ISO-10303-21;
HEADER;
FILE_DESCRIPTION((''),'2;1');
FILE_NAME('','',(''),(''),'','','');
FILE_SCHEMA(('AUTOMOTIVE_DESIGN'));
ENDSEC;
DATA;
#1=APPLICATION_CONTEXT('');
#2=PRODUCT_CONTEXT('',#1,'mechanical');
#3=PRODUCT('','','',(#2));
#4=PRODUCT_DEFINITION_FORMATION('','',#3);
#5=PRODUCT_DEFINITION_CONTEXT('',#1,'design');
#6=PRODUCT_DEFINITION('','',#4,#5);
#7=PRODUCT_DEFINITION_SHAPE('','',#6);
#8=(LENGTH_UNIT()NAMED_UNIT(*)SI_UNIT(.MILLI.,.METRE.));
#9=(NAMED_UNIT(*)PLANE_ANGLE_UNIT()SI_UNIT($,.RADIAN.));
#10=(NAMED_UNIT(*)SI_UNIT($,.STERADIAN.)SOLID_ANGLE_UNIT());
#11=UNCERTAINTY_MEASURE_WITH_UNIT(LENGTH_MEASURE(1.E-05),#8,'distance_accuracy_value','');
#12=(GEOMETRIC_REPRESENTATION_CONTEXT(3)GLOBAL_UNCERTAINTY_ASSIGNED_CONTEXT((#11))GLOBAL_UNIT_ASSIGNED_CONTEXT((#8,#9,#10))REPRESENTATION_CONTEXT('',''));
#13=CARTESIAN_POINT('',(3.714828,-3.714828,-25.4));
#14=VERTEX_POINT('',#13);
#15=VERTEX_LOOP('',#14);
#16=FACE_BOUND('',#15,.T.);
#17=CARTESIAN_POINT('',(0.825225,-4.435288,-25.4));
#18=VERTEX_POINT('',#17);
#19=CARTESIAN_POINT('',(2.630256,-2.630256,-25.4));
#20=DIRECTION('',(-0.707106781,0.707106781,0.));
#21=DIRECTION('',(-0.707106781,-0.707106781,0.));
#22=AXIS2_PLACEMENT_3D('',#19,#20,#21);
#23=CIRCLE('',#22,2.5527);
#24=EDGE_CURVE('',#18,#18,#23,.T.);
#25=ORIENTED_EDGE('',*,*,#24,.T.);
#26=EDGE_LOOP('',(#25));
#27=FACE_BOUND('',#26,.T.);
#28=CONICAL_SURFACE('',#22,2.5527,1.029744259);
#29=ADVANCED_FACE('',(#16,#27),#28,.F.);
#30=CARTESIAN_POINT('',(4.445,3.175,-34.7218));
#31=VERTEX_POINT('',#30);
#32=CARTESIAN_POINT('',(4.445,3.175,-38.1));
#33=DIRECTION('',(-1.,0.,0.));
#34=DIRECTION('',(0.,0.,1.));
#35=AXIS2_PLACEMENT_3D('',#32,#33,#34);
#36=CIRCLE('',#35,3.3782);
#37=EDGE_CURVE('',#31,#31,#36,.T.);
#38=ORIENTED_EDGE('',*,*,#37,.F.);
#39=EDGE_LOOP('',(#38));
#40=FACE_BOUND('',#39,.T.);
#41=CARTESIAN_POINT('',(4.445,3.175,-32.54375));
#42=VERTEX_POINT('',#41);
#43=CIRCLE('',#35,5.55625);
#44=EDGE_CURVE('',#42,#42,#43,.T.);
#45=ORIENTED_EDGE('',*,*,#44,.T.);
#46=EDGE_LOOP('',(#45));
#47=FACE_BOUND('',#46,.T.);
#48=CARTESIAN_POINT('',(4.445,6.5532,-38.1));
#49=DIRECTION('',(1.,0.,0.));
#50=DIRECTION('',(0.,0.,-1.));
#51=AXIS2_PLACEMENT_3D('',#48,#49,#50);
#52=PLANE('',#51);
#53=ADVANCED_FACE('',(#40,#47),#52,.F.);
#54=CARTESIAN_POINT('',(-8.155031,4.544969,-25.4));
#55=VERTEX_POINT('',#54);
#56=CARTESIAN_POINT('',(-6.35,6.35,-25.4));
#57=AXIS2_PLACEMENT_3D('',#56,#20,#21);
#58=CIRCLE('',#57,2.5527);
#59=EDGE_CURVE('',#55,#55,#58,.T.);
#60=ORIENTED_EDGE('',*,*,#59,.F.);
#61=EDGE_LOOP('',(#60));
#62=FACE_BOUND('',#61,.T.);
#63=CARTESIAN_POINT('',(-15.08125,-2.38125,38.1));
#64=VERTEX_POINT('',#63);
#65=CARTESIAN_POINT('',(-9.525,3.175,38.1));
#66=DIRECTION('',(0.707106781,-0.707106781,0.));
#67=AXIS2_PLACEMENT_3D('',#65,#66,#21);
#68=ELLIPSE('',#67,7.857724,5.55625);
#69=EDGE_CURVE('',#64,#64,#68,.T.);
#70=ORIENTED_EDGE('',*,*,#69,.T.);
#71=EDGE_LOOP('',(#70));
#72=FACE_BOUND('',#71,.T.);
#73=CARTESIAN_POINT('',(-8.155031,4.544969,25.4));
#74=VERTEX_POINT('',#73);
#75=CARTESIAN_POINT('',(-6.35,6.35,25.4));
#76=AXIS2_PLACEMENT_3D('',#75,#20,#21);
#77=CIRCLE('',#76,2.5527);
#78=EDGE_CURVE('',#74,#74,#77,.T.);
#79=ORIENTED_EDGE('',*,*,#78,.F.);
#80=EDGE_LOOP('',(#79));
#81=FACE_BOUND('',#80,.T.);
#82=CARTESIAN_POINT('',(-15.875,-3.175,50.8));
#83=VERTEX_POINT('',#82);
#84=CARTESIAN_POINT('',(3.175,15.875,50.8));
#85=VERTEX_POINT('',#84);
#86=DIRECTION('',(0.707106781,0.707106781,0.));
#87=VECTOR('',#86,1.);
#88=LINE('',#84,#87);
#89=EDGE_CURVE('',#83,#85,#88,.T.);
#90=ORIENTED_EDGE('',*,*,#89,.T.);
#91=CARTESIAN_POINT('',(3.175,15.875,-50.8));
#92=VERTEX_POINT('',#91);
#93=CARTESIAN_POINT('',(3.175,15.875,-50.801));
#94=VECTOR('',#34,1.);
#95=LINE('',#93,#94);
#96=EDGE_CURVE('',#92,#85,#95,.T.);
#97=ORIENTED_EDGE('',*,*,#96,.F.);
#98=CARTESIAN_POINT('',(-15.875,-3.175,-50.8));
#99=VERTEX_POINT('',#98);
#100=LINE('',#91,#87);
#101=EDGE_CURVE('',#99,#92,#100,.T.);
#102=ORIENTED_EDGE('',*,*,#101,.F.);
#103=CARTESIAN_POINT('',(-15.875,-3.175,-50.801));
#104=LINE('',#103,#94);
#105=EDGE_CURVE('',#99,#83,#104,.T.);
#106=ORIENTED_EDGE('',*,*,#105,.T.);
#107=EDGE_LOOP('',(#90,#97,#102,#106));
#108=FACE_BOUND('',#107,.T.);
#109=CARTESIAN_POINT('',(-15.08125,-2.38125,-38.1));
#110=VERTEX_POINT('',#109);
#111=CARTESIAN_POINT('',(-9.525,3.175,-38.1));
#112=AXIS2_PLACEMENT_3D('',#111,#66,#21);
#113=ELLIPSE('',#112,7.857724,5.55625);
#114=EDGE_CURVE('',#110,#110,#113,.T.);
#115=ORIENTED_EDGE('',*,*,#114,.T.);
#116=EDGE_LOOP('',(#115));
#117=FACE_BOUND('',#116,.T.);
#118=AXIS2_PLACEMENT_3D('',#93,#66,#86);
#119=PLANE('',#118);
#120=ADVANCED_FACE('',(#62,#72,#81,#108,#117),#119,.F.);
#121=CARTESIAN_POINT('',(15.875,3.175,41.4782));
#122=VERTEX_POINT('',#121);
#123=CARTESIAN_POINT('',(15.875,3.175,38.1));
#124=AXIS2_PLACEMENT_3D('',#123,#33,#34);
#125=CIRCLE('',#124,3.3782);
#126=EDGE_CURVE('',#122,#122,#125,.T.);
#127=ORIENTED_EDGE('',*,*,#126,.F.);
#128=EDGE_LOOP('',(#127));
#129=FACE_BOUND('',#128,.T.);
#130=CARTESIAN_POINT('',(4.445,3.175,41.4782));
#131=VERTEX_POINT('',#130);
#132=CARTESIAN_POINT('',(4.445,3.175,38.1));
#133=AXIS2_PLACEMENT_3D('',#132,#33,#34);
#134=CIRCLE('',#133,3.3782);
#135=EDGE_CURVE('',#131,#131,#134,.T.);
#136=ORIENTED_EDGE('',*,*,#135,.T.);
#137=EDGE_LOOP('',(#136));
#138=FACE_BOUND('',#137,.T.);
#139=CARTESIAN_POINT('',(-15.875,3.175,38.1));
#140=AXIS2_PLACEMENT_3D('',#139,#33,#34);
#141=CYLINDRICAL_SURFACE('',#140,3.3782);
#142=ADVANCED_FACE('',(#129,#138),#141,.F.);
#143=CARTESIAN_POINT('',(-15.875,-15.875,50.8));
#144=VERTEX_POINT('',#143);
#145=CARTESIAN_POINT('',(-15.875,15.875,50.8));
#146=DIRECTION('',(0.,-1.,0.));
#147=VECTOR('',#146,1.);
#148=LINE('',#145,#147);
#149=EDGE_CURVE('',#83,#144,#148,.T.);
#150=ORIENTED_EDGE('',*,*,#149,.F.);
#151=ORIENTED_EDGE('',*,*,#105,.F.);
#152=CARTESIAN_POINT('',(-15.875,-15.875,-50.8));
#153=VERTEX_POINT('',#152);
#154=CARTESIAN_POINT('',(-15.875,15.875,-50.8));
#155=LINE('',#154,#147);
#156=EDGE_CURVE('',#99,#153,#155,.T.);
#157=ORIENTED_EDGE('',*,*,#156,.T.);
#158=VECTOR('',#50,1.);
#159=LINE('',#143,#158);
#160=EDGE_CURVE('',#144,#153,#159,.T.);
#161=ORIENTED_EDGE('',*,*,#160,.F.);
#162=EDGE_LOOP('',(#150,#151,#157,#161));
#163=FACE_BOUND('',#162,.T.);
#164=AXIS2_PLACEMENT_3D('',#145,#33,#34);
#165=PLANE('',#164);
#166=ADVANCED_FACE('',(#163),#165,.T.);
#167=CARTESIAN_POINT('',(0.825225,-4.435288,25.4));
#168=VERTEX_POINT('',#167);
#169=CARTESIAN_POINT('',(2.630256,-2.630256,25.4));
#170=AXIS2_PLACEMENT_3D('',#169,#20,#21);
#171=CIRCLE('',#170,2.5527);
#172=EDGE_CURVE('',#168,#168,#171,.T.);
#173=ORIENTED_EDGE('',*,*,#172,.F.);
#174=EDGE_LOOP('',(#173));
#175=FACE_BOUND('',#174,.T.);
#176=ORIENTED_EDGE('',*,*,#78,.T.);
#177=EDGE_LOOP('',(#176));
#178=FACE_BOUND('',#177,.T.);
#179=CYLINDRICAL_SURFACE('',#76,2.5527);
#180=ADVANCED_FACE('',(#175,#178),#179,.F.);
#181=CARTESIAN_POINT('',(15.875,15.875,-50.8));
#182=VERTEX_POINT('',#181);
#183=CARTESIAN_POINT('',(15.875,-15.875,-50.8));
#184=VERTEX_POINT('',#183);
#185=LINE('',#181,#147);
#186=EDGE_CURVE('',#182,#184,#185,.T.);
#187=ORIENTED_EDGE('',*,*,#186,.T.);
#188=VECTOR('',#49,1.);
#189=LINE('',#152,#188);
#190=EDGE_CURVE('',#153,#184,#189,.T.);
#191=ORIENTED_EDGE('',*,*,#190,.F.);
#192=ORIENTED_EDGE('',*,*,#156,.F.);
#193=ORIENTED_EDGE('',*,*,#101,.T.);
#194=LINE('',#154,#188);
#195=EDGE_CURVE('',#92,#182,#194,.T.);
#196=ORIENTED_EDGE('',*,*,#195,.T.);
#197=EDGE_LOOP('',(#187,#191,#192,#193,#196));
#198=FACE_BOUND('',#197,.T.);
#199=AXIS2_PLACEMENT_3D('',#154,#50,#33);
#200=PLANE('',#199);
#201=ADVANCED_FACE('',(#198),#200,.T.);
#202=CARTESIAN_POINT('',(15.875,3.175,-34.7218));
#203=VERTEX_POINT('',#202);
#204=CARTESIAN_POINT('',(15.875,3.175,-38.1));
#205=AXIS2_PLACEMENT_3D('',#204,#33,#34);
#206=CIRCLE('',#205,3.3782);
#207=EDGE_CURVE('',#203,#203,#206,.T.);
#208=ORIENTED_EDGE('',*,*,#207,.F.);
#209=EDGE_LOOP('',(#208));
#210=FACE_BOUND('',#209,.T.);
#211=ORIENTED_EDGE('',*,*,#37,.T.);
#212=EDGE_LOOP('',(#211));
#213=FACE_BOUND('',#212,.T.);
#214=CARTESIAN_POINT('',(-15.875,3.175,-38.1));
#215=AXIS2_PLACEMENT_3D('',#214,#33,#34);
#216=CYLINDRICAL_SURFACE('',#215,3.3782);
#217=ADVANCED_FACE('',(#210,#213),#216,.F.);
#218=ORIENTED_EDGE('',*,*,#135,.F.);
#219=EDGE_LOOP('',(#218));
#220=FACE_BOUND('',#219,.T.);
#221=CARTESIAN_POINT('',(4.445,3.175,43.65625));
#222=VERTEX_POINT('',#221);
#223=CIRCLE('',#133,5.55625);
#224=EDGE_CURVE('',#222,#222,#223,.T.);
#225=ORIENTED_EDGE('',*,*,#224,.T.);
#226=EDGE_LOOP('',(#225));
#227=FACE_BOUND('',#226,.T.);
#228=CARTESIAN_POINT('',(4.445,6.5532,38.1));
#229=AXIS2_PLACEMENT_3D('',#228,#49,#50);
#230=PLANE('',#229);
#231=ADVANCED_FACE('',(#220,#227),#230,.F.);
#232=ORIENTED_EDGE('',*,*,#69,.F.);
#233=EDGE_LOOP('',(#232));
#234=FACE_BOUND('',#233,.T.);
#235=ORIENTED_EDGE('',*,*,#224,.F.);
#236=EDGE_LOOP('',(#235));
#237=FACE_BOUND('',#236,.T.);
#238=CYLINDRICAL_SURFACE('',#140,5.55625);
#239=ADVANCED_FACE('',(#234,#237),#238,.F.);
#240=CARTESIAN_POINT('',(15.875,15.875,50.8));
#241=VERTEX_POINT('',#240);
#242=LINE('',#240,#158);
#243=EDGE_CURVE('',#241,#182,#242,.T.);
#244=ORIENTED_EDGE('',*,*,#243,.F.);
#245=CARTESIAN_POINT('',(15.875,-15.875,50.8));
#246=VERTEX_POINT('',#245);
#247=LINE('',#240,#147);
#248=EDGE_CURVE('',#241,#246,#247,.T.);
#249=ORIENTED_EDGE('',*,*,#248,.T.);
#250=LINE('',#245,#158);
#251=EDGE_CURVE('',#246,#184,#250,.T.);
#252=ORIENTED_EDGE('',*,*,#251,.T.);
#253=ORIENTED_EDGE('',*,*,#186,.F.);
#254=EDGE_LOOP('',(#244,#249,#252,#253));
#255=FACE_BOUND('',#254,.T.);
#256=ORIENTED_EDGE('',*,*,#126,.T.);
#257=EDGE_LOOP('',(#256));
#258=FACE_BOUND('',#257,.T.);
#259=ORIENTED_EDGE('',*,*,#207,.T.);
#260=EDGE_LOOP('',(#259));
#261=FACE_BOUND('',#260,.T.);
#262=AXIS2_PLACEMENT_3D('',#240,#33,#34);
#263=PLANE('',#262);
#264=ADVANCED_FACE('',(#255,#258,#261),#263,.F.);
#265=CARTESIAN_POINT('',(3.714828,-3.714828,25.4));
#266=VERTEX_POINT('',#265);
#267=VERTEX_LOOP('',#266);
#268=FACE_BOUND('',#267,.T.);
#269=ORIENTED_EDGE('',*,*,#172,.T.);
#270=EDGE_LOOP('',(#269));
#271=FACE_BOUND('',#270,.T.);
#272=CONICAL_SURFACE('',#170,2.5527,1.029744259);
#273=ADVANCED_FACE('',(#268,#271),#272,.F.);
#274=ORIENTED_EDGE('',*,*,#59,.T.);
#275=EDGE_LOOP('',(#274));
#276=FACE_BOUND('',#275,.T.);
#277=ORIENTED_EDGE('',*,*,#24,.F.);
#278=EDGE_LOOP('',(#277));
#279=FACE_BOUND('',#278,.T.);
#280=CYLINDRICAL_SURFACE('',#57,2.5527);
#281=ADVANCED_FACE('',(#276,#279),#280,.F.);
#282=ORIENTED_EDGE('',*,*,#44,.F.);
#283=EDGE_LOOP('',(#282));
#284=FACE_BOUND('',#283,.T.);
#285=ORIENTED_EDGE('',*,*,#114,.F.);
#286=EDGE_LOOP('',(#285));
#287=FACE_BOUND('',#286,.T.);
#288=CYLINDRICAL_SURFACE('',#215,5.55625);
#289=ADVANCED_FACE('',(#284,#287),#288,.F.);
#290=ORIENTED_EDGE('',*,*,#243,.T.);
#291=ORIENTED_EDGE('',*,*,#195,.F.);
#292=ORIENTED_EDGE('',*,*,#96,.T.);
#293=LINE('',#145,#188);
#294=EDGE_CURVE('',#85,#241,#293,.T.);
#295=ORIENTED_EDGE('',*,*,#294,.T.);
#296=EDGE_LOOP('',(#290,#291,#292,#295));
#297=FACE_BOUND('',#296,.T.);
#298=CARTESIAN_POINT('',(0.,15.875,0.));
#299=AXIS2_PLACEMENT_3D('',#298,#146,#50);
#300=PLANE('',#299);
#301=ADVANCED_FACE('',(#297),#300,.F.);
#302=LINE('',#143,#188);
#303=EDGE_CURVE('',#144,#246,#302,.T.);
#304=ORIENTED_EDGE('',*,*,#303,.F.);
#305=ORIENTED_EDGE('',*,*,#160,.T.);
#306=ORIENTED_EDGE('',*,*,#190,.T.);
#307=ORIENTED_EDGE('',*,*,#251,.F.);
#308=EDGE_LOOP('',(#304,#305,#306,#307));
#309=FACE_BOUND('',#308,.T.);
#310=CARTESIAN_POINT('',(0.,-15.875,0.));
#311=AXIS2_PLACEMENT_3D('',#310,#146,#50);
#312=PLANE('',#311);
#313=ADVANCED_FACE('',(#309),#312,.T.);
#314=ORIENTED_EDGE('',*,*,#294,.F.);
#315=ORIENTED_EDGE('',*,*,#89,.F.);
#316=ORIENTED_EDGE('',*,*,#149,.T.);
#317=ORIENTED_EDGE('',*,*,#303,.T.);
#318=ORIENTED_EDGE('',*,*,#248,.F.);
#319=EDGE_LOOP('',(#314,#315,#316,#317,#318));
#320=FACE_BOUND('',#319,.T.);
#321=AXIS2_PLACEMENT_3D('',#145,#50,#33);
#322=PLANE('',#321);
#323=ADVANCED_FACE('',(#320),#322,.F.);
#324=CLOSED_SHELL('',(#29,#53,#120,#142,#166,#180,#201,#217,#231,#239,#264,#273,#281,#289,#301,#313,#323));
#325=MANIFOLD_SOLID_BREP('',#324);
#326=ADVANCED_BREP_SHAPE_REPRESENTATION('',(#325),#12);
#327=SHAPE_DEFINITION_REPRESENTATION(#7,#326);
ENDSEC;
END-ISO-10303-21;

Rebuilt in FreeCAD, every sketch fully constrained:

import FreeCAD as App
import Part
import Sketcher
Q = App.Units.Quantity


def add_polygon(sketch, points):
    """Adds a closed chain of lines whose ends are joined by coincident constraints."""
    first, n = sketch.GeometryCount, len(points)
    for a, b in zip(points, points[1:] + points[:1]):
        sketch.addGeometry(Part.LineSegment(App.Vector(*a, 0), App.Vector(*b, 0)), False)
    for i in range(n):
        sketch.addConstraint(Sketcher.Constraint("Coincident", first + i, 2, first + (i + 1) % n, 1))

doc = App.newDocument("Part")
params = doc.addObject("Spreadsheet::Sheet", "Params")
for row, (alias, value) in enumerate([
    ("sketch1_height", "4 in"),
    ("sketch1_width", "1.25 in"),
    ("pad1_length", "1.25 in"),
    ("sketch2_width", "0.75 in"),
    ("sketch3_diameter", "0.201 in"),
    ("hole_diameter", "0.201 in"),
    ("hole_depth", "0.5 in"),
    ("sketch4_diameter", "0.266 in"),
    ("hole2_diameter", "0.266 in"),
    ("hole2_cbore_diameter", "0.4375 in"),
    ("hole2_cbore_depth", "0.8 in"),
], start=1):
    params.set(f"A{row}", alias)
    params.set(f"B{row}", "=" + value)
    params.setAlias(f"B{row}", alias)

body = doc.addObject("PartDesign::Body", "Body")

# Sketch on XZ plane
sketch1 = doc.addObject("Sketcher::SketchObject", "Sketch")
body.addObject(sketch1)
sketch1.AttachmentSupport = (doc.XZ_Plane, [""])
sketch1.MapMode = "FlatFace"
add_polygon(sketch1, [(-16, -51), (-16, 51), (16, 51), (16, -51)])  # lines 0-3
sketch1.addConstraint(Sketcher.Constraint("Vertical", 0))
sketch1.addConstraint(Sketcher.Constraint("Horizontal", 1))
sketch1.addConstraint(Sketcher.Constraint("Vertical", 2))
sketch1.addConstraint(Sketcher.Constraint("Horizontal", 3))
sketch1.addConstraint(Sketcher.Constraint("Symmetric", 0, 2, 2, 2, -1, 1))
sketch1.addConstraint(Sketcher.Constraint("DistanceY", 0, 1, 0, 2, Q("4 in")))
sketch1.addConstraint(Sketcher.Constraint("DistanceX", 1, 1, 1, 2, Q("1.25 in")))
sketch1.setExpression("Constraints[9]", "Params.sketch1_height")
sketch1.setExpression("Constraints[10]", "Params.sketch1_width")
pad1 = doc.addObject("PartDesign::Pad", "Pad")
body.addObject(pad1)
pad1.Profile = sketch1
pad1.setExpression("Length", "Params.pad1_length")
pad1.Midplane = True

# Sketch on XY plane
sketch2 = doc.addObject("Sketcher::SketchObject", "Sketch001")
body.addObject(sketch2)
sketch2.AttachmentSupport = (doc.XY_Plane, [""])
sketch2.MapMode = "FlatFace"
sketch2.AttachmentOffset = App.Placement(App.Vector(0, 0, 2 * 25.4), App.Rotation())
add_polygon(sketch2, [(-16, 16), (-16, -3), (3, 16)])  # lines 0-2
sketch2.addConstraint(Sketcher.Constraint("Vertical", 0))
sketch2.addConstraint(Sketcher.Constraint("Horizontal", 2))
sketch2.addConstraint(Sketcher.Constraint("Equal", 2, 0))
sketch2.addConstraint(Sketcher.Constraint("DistanceX", 2, 2, 2, 1, Q("0.75 in")))
sketch2.addConstraint(Sketcher.Constraint("DistanceX", 0, 2, -1, 1, Q("0.625 in")))
sketch2.addConstraint(Sketcher.Constraint("DistanceY", 0, 2, -1, 1, Q("0.125 in")))
sketch2.setExpression("Constraints[6]", "Params.sketch2_width")
pocket1 = doc.addObject("PartDesign::Pocket", "Pocket")
body.addObject(pocket1)
pocket1.Profile = sketch2
pocket1.Type = "UpToFirst"

# Sketch on an angled plane
sketch3 = doc.addObject("Sketcher::SketchObject", "Sketch002")
body.addObject(sketch3)
sketch3.Placement = App.Placement(App.Vector(-6.35, 6.35, 0), App.Rotation(App.Vector(0, 0, 1), App.Vector(0.707106781, 0.707106781, 0), App.Vector(-0.707106781, 0.707106781, 0), "ZXY"))
sketch3.addGeometry(Part.Circle(App.Vector(-25.4, 0, 0), App.Vector(0, 0, 1), 2.6), False)
sketch3.addGeometry(Part.Circle(App.Vector(25.4, 0, 0), App.Vector(0, 0, 1), 2.6), False)
sketch3.addConstraint(Sketcher.Constraint("Equal", 0, 1))
sketch3.addConstraint(Sketcher.Constraint("Symmetric", 0, 3, 1, 3, -1, 1))
sketch3.addConstraint(Sketcher.Constraint("PointOnObject", 0, 3, -1))
sketch3.addConstraint(Sketcher.Constraint("Diameter", 0, Q("0.201 in")))
sketch3.addConstraint(Sketcher.Constraint("DistanceX", 0, 3, -1, 1, Q("1 in")))
sketch3.setExpression("Constraints[3]", "Params.sketch3_diameter")
doc.recompute()
hole = doc.addObject("PartDesign::Hole", "Hole")
body.addObject(hole)
hole.Profile = sketch3
hole.ThreadType = "None"
hole.setExpression("Diameter", "Params.hole_diameter")
hole.DepthType = "Dimension"
hole.setExpression("Depth", "Params.hole_depth")
hole.DrillPoint = "Angled"
hole.DrillPointAngle = 118

# Sketch on YZ plane
sketch4 = doc.addObject("Sketcher::SketchObject", "Sketch003")
body.addObject(sketch4)
sketch4.AttachmentSupport = (doc.YZ_Plane, [""])
sketch4.MapMode = "FlatFace"
sketch4.AttachmentOffset = App.Placement(App.Vector(0, 0, -0.625 * 25.4), App.Rotation())
sketch4.addGeometry(Part.Circle(App.Vector(3.2, -38.1, 0), App.Vector(0, 0, 1), 3.4), False)
sketch4.addGeometry(Part.Circle(App.Vector(3.2, 38.1, 0), App.Vector(0, 0, 1), 3.4), False)
sketch4.addConstraint(Sketcher.Constraint("Equal", 0, 1))
sketch4.addConstraint(Sketcher.Constraint("Symmetric", 0, 3, 1, 3, -1))
sketch4.addConstraint(Sketcher.Constraint("Diameter", 0, Q("0.266 in")))
sketch4.addConstraint(Sketcher.Constraint("DistanceY", 0, 3, 1, 3, Q("3 in")))
sketch4.addConstraint(Sketcher.Constraint("DistanceX", -1, 1, 0, 3, Q("0.125 in")))
sketch4.setExpression("Constraints[2]", "Params.sketch4_diameter")
doc.recompute()
hole2 = doc.addObject("PartDesign::Hole", "Hole001")
body.addObject(hole2)
hole2.Profile = sketch4
hole2.ThreadType = "None"
hole2.setExpression("Diameter", "Params.hole2_diameter")
hole2.DepthType = "ThroughAll"
hole2.HoleCutType = "Counterbore"
hole2.setExpression("HoleCutDiameter", "Params.hole2_cbore_diameter")
hole2.setExpression("HoleCutDepth", "Params.hole2_cbore_depth")
hole2.Reversed = True

doc.recompute()
